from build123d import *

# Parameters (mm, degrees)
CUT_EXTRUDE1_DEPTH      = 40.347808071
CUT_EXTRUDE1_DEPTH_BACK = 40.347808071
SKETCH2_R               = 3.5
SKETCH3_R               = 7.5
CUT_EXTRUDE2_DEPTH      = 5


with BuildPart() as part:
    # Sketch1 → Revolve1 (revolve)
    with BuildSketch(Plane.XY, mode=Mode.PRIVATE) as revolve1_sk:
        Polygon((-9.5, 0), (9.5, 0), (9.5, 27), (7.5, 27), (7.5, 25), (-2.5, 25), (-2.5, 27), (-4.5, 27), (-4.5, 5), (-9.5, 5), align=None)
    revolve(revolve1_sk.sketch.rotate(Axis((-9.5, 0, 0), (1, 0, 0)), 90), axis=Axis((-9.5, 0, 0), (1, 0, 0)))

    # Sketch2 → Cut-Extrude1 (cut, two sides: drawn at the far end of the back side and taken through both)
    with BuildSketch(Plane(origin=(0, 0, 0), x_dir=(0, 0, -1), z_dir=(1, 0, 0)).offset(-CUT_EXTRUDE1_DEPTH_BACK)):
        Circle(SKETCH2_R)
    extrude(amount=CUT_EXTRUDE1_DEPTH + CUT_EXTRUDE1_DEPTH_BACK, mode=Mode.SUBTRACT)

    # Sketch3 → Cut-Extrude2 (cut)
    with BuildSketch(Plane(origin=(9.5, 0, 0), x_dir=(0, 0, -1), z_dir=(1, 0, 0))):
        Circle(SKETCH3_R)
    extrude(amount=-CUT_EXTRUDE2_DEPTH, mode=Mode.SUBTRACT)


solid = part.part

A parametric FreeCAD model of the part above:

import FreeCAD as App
import Part
import Sketcher
Q = App.Units.Quantity

doc = App.newDocument("Part")
body = doc.addObject("PartDesign::Body", "Body")

# Sketch on XY plane
sketch1 = doc.addObject("Sketcher::SketchObject", "Sketch")
body.addObject(sketch1)
sketch1.AttachmentSupport = (doc.XY_Plane, [""])
sketch1.MapMode = "FlatFace"
sketch1.addGeometry([
    Part.LineSegment(App.Vector(-9.5, 0, 0), App.Vector(9.5, 0, 0)),  # 0
    Part.LineSegment(App.Vector(9.5, 0, 0), App.Vector(9.5, 27, 0)),  # 1
    Part.LineSegment(App.Vector(9.5, 27, 0), App.Vector(7.5, 27, 0)),  # 2
    Part.LineSegment(App.Vector(7.5, 27, 0), App.Vector(7.5, 25, 0)),  # 3
    Part.LineSegment(App.Vector(7.5, 25, 0), App.Vector(-2.5, 25, 0)),  # 4
    Part.LineSegment(App.Vector(-2.5, 25, 0), App.Vector(-2.5, 27, 0)),  # 5
    Part.LineSegment(App.Vector(-2.5, 27, 0), App.Vector(-4.5, 27, 0)),  # 6
    Part.LineSegment(App.Vector(-4.5, 27, 0), App.Vector(-4.5, 5, 0)),  # 7
    Part.LineSegment(App.Vector(-4.5, 5, 0), App.Vector(-9.5, 5, 0)),  # 8
    Part.LineSegment(App.Vector(-9.5, 5, 0), App.Vector(-9.5, 0, 0)),  # 9
], False)
sketch1.addConstraint([
    Sketcher.Constraint("Coincident", 0, 2, 1, 1),
    Sketcher.Constraint("Coincident", 1, 2, 2, 1),
    Sketcher.Constraint("Coincident", 2, 2, 3, 1),
    Sketcher.Constraint("Coincident", 3, 2, 4, 1),
    Sketcher.Constraint("Coincident", 4, 2, 5, 1),
    Sketcher.Constraint("Coincident", 5, 2, 6, 1),
    Sketcher.Constraint("Coincident", 6, 2, 7, 1),
    Sketcher.Constraint("Coincident", 7, 2, 8, 1),
    Sketcher.Constraint("Coincident", 8, 2, 9, 1),
    Sketcher.Constraint("Coincident", 9, 2, 0, 1),
    Sketcher.Constraint("Horizontal", 0),
    Sketcher.Constraint("Vertical", 1),
    Sketcher.Constraint("Horizontal", 2),
    Sketcher.Constraint("Vertical", 3),
    Sketcher.Constraint("Horizontal", 4),
    Sketcher.Constraint("Vertical", 5),
    Sketcher.Constraint("Horizontal", 6),
    Sketcher.Constraint("Vertical", 7),
    Sketcher.Constraint("Horizontal", 8),
    Sketcher.Constraint("Vertical", 9),
    Sketcher.Constraint("Symmetric", 0, 2, 9, 2, -1, 1),
    Sketcher.Constraint("Horizontal", 2, 2, 5, 2),
    Sketcher.Constraint("Equal", 2, 6),
    Sketcher.Constraint("Equal", 6, 3),
    Sketcher.Constraint("Equal", 8, 9),
    Sketcher.Constraint("DistanceX", 0, 1, 0, 2, Q("19 mm")),
    Sketcher.Constraint("DistanceX", 2, 2, 2, 1, Q("2 mm")),
    Sketcher.Constraint("DistanceX", 4, 2, 4, 1, Q("10 mm")),
    Sketcher.Constraint("DistanceY", 1, 1, 1, 2, Q("27 mm")),
])
revolution = doc.addObject("PartDesign::Revolution", "Revolution")
body.addObject(revolution)
revolution.Profile = sketch1
revolution.ReferenceAxis = (sketch1, ["H_Axis"])
revolution.Angle = 360

# Sketch on YZ plane
sketch2 = doc.addObject("Sketcher::SketchObject", "Sketch001")
body.addObject(sketch2)
sketch2.AttachmentSupport = (doc.YZ_Plane, [""])
sketch2.MapMode = "FlatFace"
sketch2.addGeometry(Part.Circle(App.Vector(0, 0, 0), App.Vector(0, 0, 1), 3.5), False)
sketch2.addConstraint([
    Sketcher.Constraint("Coincident", 0, 3, -1, 1),
    Sketcher.Constraint("Diameter", 0, Q("7 mm")),
])
pocket1 = doc.addObject("PartDesign::Pocket", "Pocket")
body.addObject(pocket1)
pocket1.Profile = sketch2
pocket1.Type = "ThroughAll"
pocket1.Midplane = True

# Sketch on YZ plane
sketch3 = doc.addObject("Sketcher::SketchObject", "Sketch002")
body.addObject(sketch3)
sketch3.AttachmentSupport = (doc.YZ_Plane, [""])
sketch3.MapMode = "FlatFace"
sketch3.AttachmentOffset = App.Placement(App.Vector(0, 0, 9.5), App.Rotation())
sketch3.addGeometry(Part.Circle(App.Vector(0, 0, 0), App.Vector(0, 0, 1), 8), False)
sketch3.addConstraint([
    Sketcher.Constraint("Coincident", 0, 3, -1, 1),
    Sketcher.Constraint("Diameter", 0, Q("15 mm")),
])
pocket2 = doc.addObject("PartDesign::Pocket", "Pocket001")
body.addObject(pocket2)
pocket2.Profile = sketch3
pocket2.Length = 5

doc.recompute()
